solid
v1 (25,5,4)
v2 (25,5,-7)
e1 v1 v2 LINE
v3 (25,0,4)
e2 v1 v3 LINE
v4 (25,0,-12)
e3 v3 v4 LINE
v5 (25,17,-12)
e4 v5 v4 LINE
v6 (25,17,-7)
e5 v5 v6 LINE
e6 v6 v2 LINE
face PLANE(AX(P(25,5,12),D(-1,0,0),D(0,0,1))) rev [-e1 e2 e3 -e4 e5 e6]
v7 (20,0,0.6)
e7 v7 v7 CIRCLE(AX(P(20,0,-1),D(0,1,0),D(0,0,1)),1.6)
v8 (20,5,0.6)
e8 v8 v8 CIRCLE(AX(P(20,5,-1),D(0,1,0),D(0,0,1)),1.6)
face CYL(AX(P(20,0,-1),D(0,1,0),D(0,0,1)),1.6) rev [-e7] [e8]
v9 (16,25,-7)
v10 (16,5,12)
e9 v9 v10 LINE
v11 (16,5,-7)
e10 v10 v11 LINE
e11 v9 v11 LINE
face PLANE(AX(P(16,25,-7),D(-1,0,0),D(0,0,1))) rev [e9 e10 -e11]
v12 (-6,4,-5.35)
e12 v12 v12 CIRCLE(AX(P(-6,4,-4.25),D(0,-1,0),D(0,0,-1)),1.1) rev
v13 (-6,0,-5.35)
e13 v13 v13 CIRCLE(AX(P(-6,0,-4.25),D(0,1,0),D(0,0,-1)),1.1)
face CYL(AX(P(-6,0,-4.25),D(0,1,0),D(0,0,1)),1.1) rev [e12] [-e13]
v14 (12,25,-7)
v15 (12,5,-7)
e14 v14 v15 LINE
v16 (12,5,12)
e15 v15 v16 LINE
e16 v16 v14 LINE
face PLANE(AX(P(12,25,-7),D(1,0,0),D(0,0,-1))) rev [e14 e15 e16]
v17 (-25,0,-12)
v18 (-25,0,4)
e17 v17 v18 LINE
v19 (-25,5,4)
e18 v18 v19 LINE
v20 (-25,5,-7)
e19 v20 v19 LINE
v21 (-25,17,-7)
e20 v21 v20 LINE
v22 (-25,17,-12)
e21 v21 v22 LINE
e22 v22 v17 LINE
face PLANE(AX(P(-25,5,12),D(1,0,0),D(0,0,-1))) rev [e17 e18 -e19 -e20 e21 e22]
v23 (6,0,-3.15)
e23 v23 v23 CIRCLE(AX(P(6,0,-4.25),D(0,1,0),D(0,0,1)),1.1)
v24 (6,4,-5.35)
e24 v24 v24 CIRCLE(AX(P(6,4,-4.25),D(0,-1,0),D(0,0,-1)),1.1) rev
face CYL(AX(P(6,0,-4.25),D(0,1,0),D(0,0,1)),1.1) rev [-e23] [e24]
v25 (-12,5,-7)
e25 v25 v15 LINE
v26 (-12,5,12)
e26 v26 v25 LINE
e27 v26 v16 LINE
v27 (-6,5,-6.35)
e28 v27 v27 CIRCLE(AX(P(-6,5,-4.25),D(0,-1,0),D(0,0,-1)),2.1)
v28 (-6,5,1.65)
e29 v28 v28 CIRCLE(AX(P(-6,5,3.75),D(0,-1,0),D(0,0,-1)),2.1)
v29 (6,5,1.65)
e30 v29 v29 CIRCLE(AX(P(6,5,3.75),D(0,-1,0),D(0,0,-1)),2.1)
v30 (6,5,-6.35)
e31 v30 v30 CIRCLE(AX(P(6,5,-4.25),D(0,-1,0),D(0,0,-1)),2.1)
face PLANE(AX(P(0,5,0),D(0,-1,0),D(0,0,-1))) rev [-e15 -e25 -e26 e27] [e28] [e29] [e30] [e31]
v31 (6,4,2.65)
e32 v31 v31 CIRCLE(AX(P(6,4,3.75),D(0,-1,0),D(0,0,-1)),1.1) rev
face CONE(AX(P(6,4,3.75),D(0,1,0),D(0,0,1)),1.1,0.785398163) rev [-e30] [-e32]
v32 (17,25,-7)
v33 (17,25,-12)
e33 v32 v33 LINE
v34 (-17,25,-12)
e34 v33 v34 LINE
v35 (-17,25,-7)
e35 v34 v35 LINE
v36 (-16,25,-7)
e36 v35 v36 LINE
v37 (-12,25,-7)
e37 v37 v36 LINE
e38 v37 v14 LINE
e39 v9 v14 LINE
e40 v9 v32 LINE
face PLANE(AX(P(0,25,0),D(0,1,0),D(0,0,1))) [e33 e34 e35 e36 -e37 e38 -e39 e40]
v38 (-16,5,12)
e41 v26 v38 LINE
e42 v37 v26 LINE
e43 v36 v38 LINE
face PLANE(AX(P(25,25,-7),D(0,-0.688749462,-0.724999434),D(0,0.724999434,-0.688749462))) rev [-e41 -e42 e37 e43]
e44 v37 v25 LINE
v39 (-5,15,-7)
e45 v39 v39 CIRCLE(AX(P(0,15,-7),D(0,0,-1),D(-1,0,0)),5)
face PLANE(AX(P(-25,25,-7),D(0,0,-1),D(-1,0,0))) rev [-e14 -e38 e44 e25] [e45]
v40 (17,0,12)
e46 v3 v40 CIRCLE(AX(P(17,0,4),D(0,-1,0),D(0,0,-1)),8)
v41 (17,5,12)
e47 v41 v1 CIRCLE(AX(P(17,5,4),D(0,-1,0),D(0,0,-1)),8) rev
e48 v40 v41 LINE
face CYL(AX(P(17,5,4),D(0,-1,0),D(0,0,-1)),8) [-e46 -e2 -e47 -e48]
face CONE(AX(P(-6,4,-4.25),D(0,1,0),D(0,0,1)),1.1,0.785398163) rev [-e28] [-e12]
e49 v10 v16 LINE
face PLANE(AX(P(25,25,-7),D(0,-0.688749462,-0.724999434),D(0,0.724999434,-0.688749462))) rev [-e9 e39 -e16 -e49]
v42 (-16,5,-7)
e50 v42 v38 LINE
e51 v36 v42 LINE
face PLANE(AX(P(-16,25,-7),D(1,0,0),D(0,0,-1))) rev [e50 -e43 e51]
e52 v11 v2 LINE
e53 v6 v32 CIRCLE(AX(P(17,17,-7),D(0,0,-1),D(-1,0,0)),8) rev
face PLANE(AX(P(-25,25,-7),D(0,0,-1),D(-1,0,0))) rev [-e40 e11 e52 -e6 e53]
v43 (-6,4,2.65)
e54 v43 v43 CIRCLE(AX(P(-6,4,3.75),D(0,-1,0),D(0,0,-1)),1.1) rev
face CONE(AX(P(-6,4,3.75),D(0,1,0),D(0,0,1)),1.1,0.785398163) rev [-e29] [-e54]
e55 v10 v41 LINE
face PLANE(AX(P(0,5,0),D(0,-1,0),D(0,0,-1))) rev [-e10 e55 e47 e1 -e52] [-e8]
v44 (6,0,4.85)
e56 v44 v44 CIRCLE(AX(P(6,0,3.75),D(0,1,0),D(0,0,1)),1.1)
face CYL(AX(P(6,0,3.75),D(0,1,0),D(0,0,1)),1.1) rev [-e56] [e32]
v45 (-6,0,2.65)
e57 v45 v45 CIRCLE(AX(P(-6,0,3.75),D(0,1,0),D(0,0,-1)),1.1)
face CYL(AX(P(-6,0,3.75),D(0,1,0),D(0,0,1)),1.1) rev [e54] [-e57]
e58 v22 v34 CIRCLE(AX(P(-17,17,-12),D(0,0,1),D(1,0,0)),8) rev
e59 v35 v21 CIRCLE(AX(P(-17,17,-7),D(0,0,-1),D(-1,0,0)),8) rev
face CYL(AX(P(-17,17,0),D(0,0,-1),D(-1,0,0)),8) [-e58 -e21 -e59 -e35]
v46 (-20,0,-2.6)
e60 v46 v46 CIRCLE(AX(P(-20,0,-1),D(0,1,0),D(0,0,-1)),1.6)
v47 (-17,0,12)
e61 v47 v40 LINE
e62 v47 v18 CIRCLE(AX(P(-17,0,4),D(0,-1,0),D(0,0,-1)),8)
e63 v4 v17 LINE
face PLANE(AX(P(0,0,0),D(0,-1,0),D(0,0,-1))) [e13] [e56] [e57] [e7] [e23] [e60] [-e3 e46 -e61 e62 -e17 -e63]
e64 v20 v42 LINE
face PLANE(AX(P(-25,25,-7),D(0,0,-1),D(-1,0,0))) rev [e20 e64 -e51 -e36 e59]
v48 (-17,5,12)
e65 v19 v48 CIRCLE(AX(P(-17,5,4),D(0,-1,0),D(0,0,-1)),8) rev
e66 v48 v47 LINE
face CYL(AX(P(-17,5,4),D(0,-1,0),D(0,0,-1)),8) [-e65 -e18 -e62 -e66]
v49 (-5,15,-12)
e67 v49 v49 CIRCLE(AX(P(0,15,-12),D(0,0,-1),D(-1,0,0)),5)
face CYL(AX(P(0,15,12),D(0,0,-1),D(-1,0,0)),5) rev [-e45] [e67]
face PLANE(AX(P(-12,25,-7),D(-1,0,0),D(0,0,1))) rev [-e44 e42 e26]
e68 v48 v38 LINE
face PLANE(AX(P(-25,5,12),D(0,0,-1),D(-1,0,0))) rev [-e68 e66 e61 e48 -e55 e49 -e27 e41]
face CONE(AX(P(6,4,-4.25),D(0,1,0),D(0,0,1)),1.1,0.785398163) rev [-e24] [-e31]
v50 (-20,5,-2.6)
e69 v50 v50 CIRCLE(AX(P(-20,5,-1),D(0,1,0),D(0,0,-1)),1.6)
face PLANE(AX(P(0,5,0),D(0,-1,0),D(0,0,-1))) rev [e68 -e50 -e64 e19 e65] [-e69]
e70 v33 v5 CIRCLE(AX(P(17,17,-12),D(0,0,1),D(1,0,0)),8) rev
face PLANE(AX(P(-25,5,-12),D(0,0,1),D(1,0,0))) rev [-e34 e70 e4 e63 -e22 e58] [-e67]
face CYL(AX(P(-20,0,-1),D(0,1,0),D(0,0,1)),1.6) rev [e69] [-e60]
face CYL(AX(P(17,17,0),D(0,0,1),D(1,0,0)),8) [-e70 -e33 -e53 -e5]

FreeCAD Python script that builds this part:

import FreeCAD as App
import Part
import Sketcher

V = App.Vector
Q = App.Units.Quantity


def edges_at(feature, points):
    """Names of the edges that pass closest to the given points."""
    edges = feature.Shape.Edges
    near = lambda p: min(range(len(edges)), key=lambda i: edges[i].distToShape(Part.Vertex(*p))[0])
    return sorted({f"Edge{near(p) + 1}" for p in points})


def add_polygon(sketch, points):
    """Adds a closed chain of lines whose ends are joined by coincident constraints."""
    first, n = sketch.GeometryCount, len(points)
    for a, b in zip(points, points[1:] + points[:1]):
        sketch.addGeometry(Part.LineSegment(App.Vector(*a, 0), App.Vector(*b, 0)), False)
    for i in range(n):
        sketch.addConstraint(Sketcher.Constraint("Coincident", first + i, 2, first + (i + 1) % n, 1))

doc = App.newDocument("Part")
params = doc.addObject("Spreadsheet::Sheet", "Params")
for row, (alias, value) in enumerate([
    ("sketch1_width", "50 mm"),
    ("sketch1_height", "24 mm"),
    ("pad1_length", "5 mm"),
    ("sketch2_width", "50 mm"),
    ("sketch2_height", "5 mm"),
    ("pad2_length", "20 mm"),
    ("sketch3_width", "4 mm"),
    ("sketch3_height", "19 mm"),
    ("pad3_length", "20 mm"),
    ("sketch4_width", "20 mm"),
    ("sketch4_height", "19 mm"),
    ("sketch5_diameter", "2.2 mm"),
    ("sketch6_diameter", "10 mm"),
    ("sketch7_diameter", "3.2 mm"),
    ("fillet_radius", "8 mm"),
    ("chamfer_size", "1 mm"),
], start=1):
    params.set(f"A{row}", alias)
    params.set(f"B{row}", "=" + value)
    params.setAlias(f"B{row}", alias)

body = doc.addObject("PartDesign::Body", "Body")

# Sketch on XZ plane
sketch1 = body.newObject("Sketcher::SketchObject", "Sketch")
sketch1.AttachmentSupport = (doc.getObject("XZ_Plane"), [""])
sketch1.MapMode = "FlatFace"
add_polygon(sketch1, [(-25, -12), (-25, 12), (25, 12), (25, -12)])  # lines 0-3
sketch1.addConstraint([
    Sketcher.Constraint("Vertical", 0),
    Sketcher.Constraint("Horizontal", 1),
    Sketcher.Constraint("Vertical", 2),
    Sketcher.Constraint("Horizontal", 3),
    Sketcher.Constraint("Symmetric", 0, 2, 2, 2, -1, 1),
    Sketcher.Constraint("DistanceX", 1, 1, 1, 2, Q("50 mm")),
    Sketcher.Constraint("DistanceY", 0, 1, 0, 2, Q("24 mm")),
])
sketch1.setExpression("Constraints[9]", "Params.sketch1_width")
sketch1.setExpression("Constraints[10]", "Params.sketch1_height")
pad1 = body.newObject("PartDesign::Pad", "Pad")
pad1.Profile = sketch1
pad1.setExpression("Length", "Params.pad1_length")
pad1.Reversed = True

# Sketch on XZ plane
sketch2 = body.newObject("Sketcher::SketchObject", "Sketch001")
sketch2.AttachmentSupport = (doc.getObject("XZ_Plane"), [""])
sketch2.MapMode = "FlatFace"
sketch2.AttachmentOffset = App.Placement(V(0, 0, -5), App.Rotation())
add_polygon(sketch2, [(-25, -12), (-25, -7), (25, -7), (25, -12)])  # lines 0-3
sketch2.addConstraint([
    Sketcher.Constraint("Vertical", 0),
    Sketcher.Constraint("Horizontal", 1),
    Sketcher.Constraint("Vertical", 2),
    Sketcher.Constraint("Horizontal", 3),
    Sketcher.Constraint("DistanceX", 1, 1, 1, 2, Q("50 mm")),
    Sketcher.Constraint("DistanceY", 0, 1, 0, 2, Q("5 mm")),
    Sketcher.Constraint("DistanceX", 0, 2, -1, 1, Q("25 mm")),
    Sketcher.Constraint("DistanceY", 0, 2, -1, 1, Q("7 mm")),
])
sketch2.setExpression("Constraints[8]", "Params.sketch2_width")
sketch2.setExpression("Constraints[9]", "Params.sketch2_height")
pad2 = body.newObject("PartDesign::Pad", "Pad001")
pad2.Profile = sketch2
pad2.setExpression("Length", "Params.pad2_length")
pad2.Reversed = True

# Sketch on XZ plane
sketch3 = body.newObject("Sketcher::SketchObject", "Sketch002")
sketch3.AttachmentSupport = (doc.getObject("XZ_Plane"), [""])
sketch3.MapMode = "FlatFace"
sketch3.AttachmentOffset = App.Placement(V(0, 0, -5), App.Rotation())
add_polygon(sketch3, [(12, -7), (12, 12), (16, 12), (16, -7)])  # lines 0-3
add_polygon(sketch3, [(-16, -7), (-16, 12), (-12, 12), (-12, -7)])  # lines 4-7
sketch3.addConstraint([
    Sketcher.Constraint("Vertical", 0),
    Sketcher.Constraint("Horizontal", 1),
    Sketcher.Constraint("Vertical", 2),
    Sketcher.Constraint("Horizontal", 3),
    Sketcher.Constraint("Vertical", 4),
    Sketcher.Constraint("Horizontal", 5),
    Sketcher.Constraint("Vertical", 6),
    Sketcher.Constraint("Horizontal", 7),
    Sketcher.Constraint("Symmetric", 1, 2, 4, 2, -2),
    Sketcher.Constraint("Symmetric", 3, 2, 6, 2, -2),
    Sketcher.Constraint("DistanceX", 1, 1, 1, 2, Q("4 mm")),
    Sketcher.Constraint("DistanceY", 0, 1, 0, 2, Q("19 mm")),
    Sketcher.Constraint("DistanceX", -1, 1, 0, 2, Q("12 mm")),
    Sketcher.Constraint("DistanceY", -1, 1, 0, 2, Q("12 mm")),
])
sketch3.setExpression("Constraints[18]", "Params.sketch3_width")
sketch3.setExpression("Constraints[19]", "Params.sketch3_height")
pad3 = body.newObject("PartDesign::Pad", "Pad002")
pad3.Profile = sketch3
pad3.setExpression("Length", "Params.pad3_length")
pad3.Reversed = True

# Sketch on YZ plane
sketch4 = body.newObject("Sketcher::SketchObject", "Sketch003")
sketch4.AttachmentSupport = (doc.getObject("YZ_Plane"), [""])
sketch4.MapMode = "FlatFace"
sketch4.AttachmentOffset = App.Placement(V(0, 0, -16), App.Rotation())
add_polygon(sketch4, [(25, -7), (5, 12), (25, 12)])  # lines 0-2
sketch4.addConstraint([
    Sketcher.Constraint("Horizontal", 1),
    Sketcher.Constraint("Vertical", 2),
    Sketcher.Constraint("DistanceX", 1, 1, 1, 2, Q("20 mm")),
    Sketcher.Constraint("DistanceY", 2, 2, 2, 1, Q("19 mm")),
    Sketcher.Constraint("DistanceX", -1, 1, 0, 2, Q("5 mm")),
    Sketcher.Constraint("DistanceY", -1, 1, 0, 2, Q("12 mm")),
])
sketch4.setExpression("Constraints[5]", "Params.sketch4_width")
sketch4.setExpression("Constraints[6]", "Params.sketch4_height")
pocket1 = body.newObject("PartDesign::Pocket", "Pocket")
pocket1.Profile = sketch4
pocket1.Type = "ThroughAll"
pocket1.Reversed = True

# Sketch on XZ plane
sketch5 = body.newObject("Sketcher::SketchObject", "Sketch004")
sketch5.AttachmentSupport = (doc.getObject("XZ_Plane"), [""])
sketch5.MapMode = "FlatFace"
sketch5.AttachmentOffset = App.Placement(V(0, 0, -5), App.Rotation())
sketch5.addGeometry([
    Part.Circle(V(6, -4.25, 0), V(0, 0, 1), 1.1),
    Part.Circle(V(6, 3.75, 0), V(0, 0, 1), 1.1),
    Part.Circle(V(-6, -4.25, 0), V(0, 0, 1), 1.1),
    Part.Circle(V(-6, 3.75, 0), V(0, 0, 1), 1.1),
], False)
sketch5.addConstraint([
    Sketcher.Constraint("Equal", 0, 1),
    Sketcher.Constraint("Equal", 1, 2),
    Sketcher.Constraint("Equal", 2, 3),
    Sketcher.Constraint("Symmetric", 0, 3, 2, 3, -2),
    Sketcher.Constraint("Symmetric", 1, 3, 3, 3, -2),
    Sketcher.Constraint("Vertical", 0, 3, 1, 3),
    Sketcher.Constraint("Diameter", 0, Q("2.2 mm")),
    Sketcher.Constraint("DistanceX", -1, 1, 0, 3, Q("6 mm")),
    Sketcher.Constraint("DistanceY", 0, 3, 1, 3, Q("8 mm")),
    Sketcher.Constraint("DistanceY", 0, 3, -1, 1, Q("4.25 mm")),
])
sketch5.setExpression("Constraints[6]", "Params.sketch5_diameter")
pocket2 = body.newObject("PartDesign::Pocket", "Pocket001")
pocket2.Profile = sketch5
pocket2.Type = "ThroughAll"
pocket2.Reversed = True

# Sketch on XY plane
sketch6 = body.newObject("Sketcher::SketchObject", "Sketch005")
sketch6.AttachmentSupport = (doc.getObject("XY_Plane"), [""])
sketch6.MapMode = "FlatFace"
sketch6.AttachmentOffset = App.Placement(V(0, 0, -12), App.Rotation())
sketch6.addGeometry(Part.Circle(V(0, 15, 0), V(0, 0, 1), 5), False)
sketch6.addConstraint([
    Sketcher.Constraint("PointOnObject", 0, 3, -2),
    Sketcher.Constraint("Diameter", 0, Q("10 mm")),
    Sketcher.Constraint("DistanceY", -1, 1, 0, 3, Q("15 mm")),
])
sketch6.setExpression("Constraints[1]", "Params.sketch6_diameter")
pocket3 = body.newObject("PartDesign::Pocket", "Pocket002")
pocket3.Profile = sketch6
pocket3.Type = "ThroughAll"
pocket3.Reversed = True

# Sketch on XZ plane
sketch7 = body.newObject("Sketcher::SketchObject", "Sketch006")
sketch7.AttachmentSupport = (doc.getObject("XZ_Plane"), [""])
sketch7.MapMode = "FlatFace"
sketch7.AttachmentOffset = App.Placement(V(0, 0, -5), App.Rotation())
sketch7.addGeometry([
    Part.Circle(V(20, -1, 0), V(0, 0, 1), 1.6),
    Part.Circle(V(-20, -1, 0), V(0, 0, 1), 1.6),
], False)
sketch7.addConstraint([
    Sketcher.Constraint("Equal", 0, 1),
    Sketcher.Constraint("Symmetric", 0, 3, 1, 3, -2),
    Sketcher.Constraint("Diameter", 0, Q("3.2 mm")),
    Sketcher.Constraint("DistanceX", -1, 1, 0, 3, Q("20 mm")),
    Sketcher.Constraint("DistanceY", 0, 3, -1, 1, Q("1 mm")),
])
sketch7.setExpression("Constraints[2]", "Params.sketch7_diameter")
pocket4 = body.newObject("PartDesign::Pocket", "Pocket003")
pocket4.Profile = sketch7
pocket4.Type = "ThroughAll"
pocket4.Reversed = True
doc.recompute()

fillet = body.newObject("PartDesign::Fillet", "Fillet")
fillet.Base = (pocket4, edges_at(pocket4, [
    (-25, 25, -9.5),
    (25, 25, -9.5),
    (25, 2.5, 12),
    (-25, 2.5, 12),
]))
fillet.setExpression("Radius", "Params.fillet_radius")
doc.recompute()

chamfer = body.newObject("PartDesign::Chamfer", "Chamfer")
chamfer.Base = (fillet, edges_at(fillet, [
    (6, 5, 2.65),
    (-6, 5, -3.15),
    (-6, 5, 4.85),
    (6, 5, -5.35),
]))
chamfer.setExpression("Size", "Params.chamfer_size")

doc.recompute()
